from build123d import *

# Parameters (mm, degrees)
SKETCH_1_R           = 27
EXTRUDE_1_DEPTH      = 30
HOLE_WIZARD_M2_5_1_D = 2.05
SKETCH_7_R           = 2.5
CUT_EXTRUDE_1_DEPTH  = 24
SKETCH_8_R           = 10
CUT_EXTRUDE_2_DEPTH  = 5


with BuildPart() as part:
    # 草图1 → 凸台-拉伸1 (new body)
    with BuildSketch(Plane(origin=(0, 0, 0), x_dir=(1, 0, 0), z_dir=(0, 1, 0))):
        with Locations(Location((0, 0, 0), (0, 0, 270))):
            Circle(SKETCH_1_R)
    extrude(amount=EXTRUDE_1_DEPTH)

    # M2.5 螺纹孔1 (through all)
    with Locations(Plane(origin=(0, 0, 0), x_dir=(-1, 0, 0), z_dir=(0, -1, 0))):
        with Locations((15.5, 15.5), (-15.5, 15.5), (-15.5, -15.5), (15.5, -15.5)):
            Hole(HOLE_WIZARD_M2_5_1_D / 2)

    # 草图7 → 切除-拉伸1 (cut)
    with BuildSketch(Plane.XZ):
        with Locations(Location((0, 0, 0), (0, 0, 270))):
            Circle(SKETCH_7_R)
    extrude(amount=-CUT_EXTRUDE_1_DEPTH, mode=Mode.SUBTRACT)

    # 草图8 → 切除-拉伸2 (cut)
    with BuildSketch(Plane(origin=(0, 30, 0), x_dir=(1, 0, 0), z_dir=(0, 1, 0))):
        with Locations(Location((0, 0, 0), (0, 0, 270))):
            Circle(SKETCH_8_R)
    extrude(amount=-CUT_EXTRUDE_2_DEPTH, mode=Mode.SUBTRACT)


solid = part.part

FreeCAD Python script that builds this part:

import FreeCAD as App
import Part
import Sketcher
from FreeCAD import Vector

doc = App.newDocument("Part")
body = doc.addObject("PartDesign::Body", "Body")

# Sketch on XZ plane
sketch1 = doc.addObject("Sketcher::SketchObject", "Sketch")
body.addObject(sketch1)
sketch1.AttachmentSupport = (doc.XZ_Plane, [""])
sketch1.MapMode = "FlatFace"
sketch1.addGeometry(Part.Circle(Vector(0, 0, 0), Vector(0, 0, 1), 27), False)
sketch1.addConstraint([
    Sketcher.Constraint("Coincident", 0, 3, -1, 1),
    Sketcher.Constraint("Diameter", 0, 54.0),
])
pad1 = doc.addObject("PartDesign::Pad", "Pad")
body.addObject(pad1)
pad1.Profile = sketch1
pad1.Length = 30
pad1.Reversed = True

# Sketch on XZ plane
sketch2 = doc.addObject("Sketcher::SketchObject", "Sketch001")
body.addObject(sketch2)
sketch2.AttachmentSupport = (doc.XZ_Plane, [""])
sketch2.MapMode = "FlatFace"
sketch2.addGeometry([
    Part.Circle(Vector(-15.5, -15.5, 0), Vector(0, 0, 1), 1),
    Part.Circle(Vector(15.5, -15.5, 0), Vector(0, 0, 1), 1),
    Part.Circle(Vector(15.5, 15.5, 0), Vector(0, 0, 1), 1),
    Part.Circle(Vector(-15.5, 15.5, 0), Vector(0, 0, 1), 1),
], False)
sketch2.addConstraint([
    Sketcher.Constraint("Equal", 0, 1),
    Sketcher.Constraint("Equal", 1, 2),
    Sketcher.Constraint("Equal", 2, 3),
    Sketcher.Constraint("Symmetric", 0, 3, 2, 3, -1, 1),
    Sketcher.Constraint("Symmetric", 1, 3, 3, 3, -1, 1),
    Sketcher.Constraint("Symmetric", 0, 3, 1, 3, -2),
    Sketcher.Constraint("Diameter", 0, 2.05),
    Sketcher.Constraint("DistanceX", 0, 3, 1, 3, 31.0),
    Sketcher.Constraint("DistanceY", 1, 3, 2, 3, 31.0),
])
doc.recompute()
hole = doc.addObject("PartDesign::Hole", "Hole")
body.addObject(hole)
hole.Profile = sketch2
hole.ThreadType = "None"
hole.Diameter = 2.05
hole.DepthType = "ThroughAll"

# Sketch on XZ plane
sketch3 = doc.addObject("Sketcher::SketchObject", "Sketch002")
body.addObject(sketch3)
sketch3.AttachmentSupport = (doc.XZ_Plane, [""])
sketch3.MapMode = "FlatFace"
sketch3.addGeometry(Part.Circle(Vector(0, 0, 0), Vector(0, 0, 1), 2.5), False)
sketch3.addConstraint([
    Sketcher.Constraint("Coincident", 0, 3, -1, 1),
    Sketcher.Constraint("Diameter", 0, 5.0),
])
pocket1 = doc.addObject("PartDesign::Pocket", "Pocket")
body.addObject(pocket1)
pocket1.Profile = sketch3
pocket1.Length = 24

# Sketch on XZ plane
sketch4 = doc.addObject("Sketcher::SketchObject", "Sketch003")
body.addObject(sketch4)
sketch4.AttachmentSupport = (doc.XZ_Plane, [""])
sketch4.MapMode = "FlatFace"
sketch4.AttachmentOffset = App.Placement(Vector(0, 0, -30), App.Rotation())
sketch4.addGeometry(Part.Circle(Vector(0, 0, 0), Vector(0, 0, 1), 10), False)
sketch4.addConstraint([
    Sketcher.Constraint("Coincident", 0, 3, -1, 1),
    Sketcher.Constraint("Diameter", 0, 20.0),
])
pocket2 = doc.addObject("PartDesign::Pocket", "Pocket001")
body.addObject(pocket2)
pocket2.Profile = sketch4
pocket2.Length = 5
pocket2.Reversed = True

doc.recompute()
